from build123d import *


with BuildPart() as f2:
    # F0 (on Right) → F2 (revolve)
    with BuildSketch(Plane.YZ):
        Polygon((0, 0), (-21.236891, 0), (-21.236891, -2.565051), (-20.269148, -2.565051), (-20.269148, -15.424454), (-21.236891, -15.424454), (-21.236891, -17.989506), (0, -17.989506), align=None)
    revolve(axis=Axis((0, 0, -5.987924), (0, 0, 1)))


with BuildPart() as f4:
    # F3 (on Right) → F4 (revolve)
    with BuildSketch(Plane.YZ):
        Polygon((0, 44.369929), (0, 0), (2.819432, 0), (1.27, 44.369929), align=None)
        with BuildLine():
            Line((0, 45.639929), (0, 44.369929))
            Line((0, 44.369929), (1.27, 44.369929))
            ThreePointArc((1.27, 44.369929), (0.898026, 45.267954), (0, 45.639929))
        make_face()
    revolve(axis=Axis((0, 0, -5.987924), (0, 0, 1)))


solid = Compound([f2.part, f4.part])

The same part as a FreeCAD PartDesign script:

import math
import FreeCAD as App
import Part
import Sketcher
Q = App.Units.Quantity


def add_polygon(sketch, points):
    """Adds a closed chain of lines whose ends are joined by coincident constraints."""
    first, n = sketch.GeometryCount, len(points)
    for a, b in zip(points, points[1:] + points[:1]):
        sketch.addGeometry(Part.LineSegment(App.Vector(*a, 0), App.Vector(*b, 0)), False)
    for i in range(n):
        sketch.addConstraint(Sketcher.Constraint("Coincident", first + i, 2, first + (i + 1) % n, 1))

doc = App.newDocument("Part")
body = doc.addObject("PartDesign::Body", "Body")

# Sketch on YZ plane
sketch1 = doc.addObject("Sketcher::SketchObject", "Sketch")
body.addObject(sketch1)
sketch1.AttachmentSupport = (doc.YZ_Plane, [""])
sketch1.MapMode = "FlatFace"
add_polygon(sketch1, [(0, 0), (-21.236891, 0), (-21.236891, -2.565051), (-20.269148, -2.565051), (-20.269148, -15.424454), (-21.236891, -15.424454), (-21.236891, -17.989506), (0, -17.989506)])  # lines 0-7
sketch1.addConstraint([
    Sketcher.Constraint("Horizontal", 0),
    Sketcher.Constraint("Vertical", 1),
    Sketcher.Constraint("Horizontal", 2),
    Sketcher.Constraint("Vertical", 3),
    Sketcher.Constraint("Horizontal", 4),
    Sketcher.Constraint("Vertical", 5),
    Sketcher.Constraint("Horizontal", 6),
    Sketcher.Constraint("Vertical", 7),
    Sketcher.Constraint("Coincident", 7, 2, -1, 1),
    Sketcher.Constraint("Vertical", 1, 2, 4, 2),
    Sketcher.Constraint("Equal", 1, 5),
    Sketcher.Constraint("DistanceX", 2, 1, 2, 2, Q("0.0381001 in")),
    Sketcher.Constraint("DistanceX", 0, 2, 0, 1, Q("21.236891 mm")),
    Sketcher.Constraint("DistanceY", 1, 2, 1, 1, Q("2.565051 mm")),
    Sketcher.Constraint("DistanceY", 3, 2, 3, 1, Q("12.859403 mm")),
])
revolution = doc.addObject("PartDesign::Revolution", "Revolution")
body.addObject(revolution)
revolution.Profile = sketch1
revolution.ReferenceAxis = (sketch1, ["V_Axis"])
revolution.Angle = 360
body2 = doc.addObject("PartDesign::Body", "Body001")

# Sketch on YZ plane
sketch2 = doc.addObject("Sketcher::SketchObject", "Sketch001")
body2.addObject(sketch2)
sketch2.AttachmentSupport = (doc.getObject("YZ_Plane001"), [""])
sketch2.MapMode = "FlatFace"
sketch2.addGeometry([
    Part.LineSegment(App.Vector(0, 0, 0), App.Vector(2.819432, 0, 0)),
    Part.LineSegment(App.Vector(2.819432, 0, 0), App.Vector(1.27, 44.369929, 0)),
    Part.ArcOfCircle(Part.Circle(App.Vector(0, 44.369929, 0), App.Vector(0, 0, 1), 1.27), math.radians(0.000017), math.radians(89.999983)),
    Part.LineSegment(App.Vector(0, 45.639929, 0), App.Vector(0, 0, 0)),
], False)
sketch2.addConstraint([
    Sketcher.Constraint("Coincident", 0, 2, 1, 1),
    Sketcher.Constraint("Coincident", 1, 2, 2, 1),
    Sketcher.Constraint("Coincident", 2, 2, 3, 1),
    Sketcher.Constraint("Coincident", 3, 2, 0, 1),
    Sketcher.Constraint("Horizontal", 0),
    Sketcher.Constraint("Vertical", 3),
    Sketcher.Constraint("Coincident", 3, 2, -1, 1),
    Sketcher.Constraint("PointOnObject", 2, 3, -2),
    Sketcher.Constraint("Horizontal", 2, 3, 1, 2),
    Sketcher.Constraint("Radius", 2, Q("0.05 in")),
    Sketcher.Constraint("Angle", 1, Q("92 deg")),
    Sketcher.Constraint("DistanceX", 0, 1, 0, 2, Q("2.819432 mm")),
])
revolution2 = doc.addObject("PartDesign::Revolution", "Revolution001")
body2.addObject(revolution2)
revolution2.Profile = sketch2
revolution2.ReferenceAxis = (sketch2, ["V_Axis"])
revolution2.Angle = 360

doc.recompute()
